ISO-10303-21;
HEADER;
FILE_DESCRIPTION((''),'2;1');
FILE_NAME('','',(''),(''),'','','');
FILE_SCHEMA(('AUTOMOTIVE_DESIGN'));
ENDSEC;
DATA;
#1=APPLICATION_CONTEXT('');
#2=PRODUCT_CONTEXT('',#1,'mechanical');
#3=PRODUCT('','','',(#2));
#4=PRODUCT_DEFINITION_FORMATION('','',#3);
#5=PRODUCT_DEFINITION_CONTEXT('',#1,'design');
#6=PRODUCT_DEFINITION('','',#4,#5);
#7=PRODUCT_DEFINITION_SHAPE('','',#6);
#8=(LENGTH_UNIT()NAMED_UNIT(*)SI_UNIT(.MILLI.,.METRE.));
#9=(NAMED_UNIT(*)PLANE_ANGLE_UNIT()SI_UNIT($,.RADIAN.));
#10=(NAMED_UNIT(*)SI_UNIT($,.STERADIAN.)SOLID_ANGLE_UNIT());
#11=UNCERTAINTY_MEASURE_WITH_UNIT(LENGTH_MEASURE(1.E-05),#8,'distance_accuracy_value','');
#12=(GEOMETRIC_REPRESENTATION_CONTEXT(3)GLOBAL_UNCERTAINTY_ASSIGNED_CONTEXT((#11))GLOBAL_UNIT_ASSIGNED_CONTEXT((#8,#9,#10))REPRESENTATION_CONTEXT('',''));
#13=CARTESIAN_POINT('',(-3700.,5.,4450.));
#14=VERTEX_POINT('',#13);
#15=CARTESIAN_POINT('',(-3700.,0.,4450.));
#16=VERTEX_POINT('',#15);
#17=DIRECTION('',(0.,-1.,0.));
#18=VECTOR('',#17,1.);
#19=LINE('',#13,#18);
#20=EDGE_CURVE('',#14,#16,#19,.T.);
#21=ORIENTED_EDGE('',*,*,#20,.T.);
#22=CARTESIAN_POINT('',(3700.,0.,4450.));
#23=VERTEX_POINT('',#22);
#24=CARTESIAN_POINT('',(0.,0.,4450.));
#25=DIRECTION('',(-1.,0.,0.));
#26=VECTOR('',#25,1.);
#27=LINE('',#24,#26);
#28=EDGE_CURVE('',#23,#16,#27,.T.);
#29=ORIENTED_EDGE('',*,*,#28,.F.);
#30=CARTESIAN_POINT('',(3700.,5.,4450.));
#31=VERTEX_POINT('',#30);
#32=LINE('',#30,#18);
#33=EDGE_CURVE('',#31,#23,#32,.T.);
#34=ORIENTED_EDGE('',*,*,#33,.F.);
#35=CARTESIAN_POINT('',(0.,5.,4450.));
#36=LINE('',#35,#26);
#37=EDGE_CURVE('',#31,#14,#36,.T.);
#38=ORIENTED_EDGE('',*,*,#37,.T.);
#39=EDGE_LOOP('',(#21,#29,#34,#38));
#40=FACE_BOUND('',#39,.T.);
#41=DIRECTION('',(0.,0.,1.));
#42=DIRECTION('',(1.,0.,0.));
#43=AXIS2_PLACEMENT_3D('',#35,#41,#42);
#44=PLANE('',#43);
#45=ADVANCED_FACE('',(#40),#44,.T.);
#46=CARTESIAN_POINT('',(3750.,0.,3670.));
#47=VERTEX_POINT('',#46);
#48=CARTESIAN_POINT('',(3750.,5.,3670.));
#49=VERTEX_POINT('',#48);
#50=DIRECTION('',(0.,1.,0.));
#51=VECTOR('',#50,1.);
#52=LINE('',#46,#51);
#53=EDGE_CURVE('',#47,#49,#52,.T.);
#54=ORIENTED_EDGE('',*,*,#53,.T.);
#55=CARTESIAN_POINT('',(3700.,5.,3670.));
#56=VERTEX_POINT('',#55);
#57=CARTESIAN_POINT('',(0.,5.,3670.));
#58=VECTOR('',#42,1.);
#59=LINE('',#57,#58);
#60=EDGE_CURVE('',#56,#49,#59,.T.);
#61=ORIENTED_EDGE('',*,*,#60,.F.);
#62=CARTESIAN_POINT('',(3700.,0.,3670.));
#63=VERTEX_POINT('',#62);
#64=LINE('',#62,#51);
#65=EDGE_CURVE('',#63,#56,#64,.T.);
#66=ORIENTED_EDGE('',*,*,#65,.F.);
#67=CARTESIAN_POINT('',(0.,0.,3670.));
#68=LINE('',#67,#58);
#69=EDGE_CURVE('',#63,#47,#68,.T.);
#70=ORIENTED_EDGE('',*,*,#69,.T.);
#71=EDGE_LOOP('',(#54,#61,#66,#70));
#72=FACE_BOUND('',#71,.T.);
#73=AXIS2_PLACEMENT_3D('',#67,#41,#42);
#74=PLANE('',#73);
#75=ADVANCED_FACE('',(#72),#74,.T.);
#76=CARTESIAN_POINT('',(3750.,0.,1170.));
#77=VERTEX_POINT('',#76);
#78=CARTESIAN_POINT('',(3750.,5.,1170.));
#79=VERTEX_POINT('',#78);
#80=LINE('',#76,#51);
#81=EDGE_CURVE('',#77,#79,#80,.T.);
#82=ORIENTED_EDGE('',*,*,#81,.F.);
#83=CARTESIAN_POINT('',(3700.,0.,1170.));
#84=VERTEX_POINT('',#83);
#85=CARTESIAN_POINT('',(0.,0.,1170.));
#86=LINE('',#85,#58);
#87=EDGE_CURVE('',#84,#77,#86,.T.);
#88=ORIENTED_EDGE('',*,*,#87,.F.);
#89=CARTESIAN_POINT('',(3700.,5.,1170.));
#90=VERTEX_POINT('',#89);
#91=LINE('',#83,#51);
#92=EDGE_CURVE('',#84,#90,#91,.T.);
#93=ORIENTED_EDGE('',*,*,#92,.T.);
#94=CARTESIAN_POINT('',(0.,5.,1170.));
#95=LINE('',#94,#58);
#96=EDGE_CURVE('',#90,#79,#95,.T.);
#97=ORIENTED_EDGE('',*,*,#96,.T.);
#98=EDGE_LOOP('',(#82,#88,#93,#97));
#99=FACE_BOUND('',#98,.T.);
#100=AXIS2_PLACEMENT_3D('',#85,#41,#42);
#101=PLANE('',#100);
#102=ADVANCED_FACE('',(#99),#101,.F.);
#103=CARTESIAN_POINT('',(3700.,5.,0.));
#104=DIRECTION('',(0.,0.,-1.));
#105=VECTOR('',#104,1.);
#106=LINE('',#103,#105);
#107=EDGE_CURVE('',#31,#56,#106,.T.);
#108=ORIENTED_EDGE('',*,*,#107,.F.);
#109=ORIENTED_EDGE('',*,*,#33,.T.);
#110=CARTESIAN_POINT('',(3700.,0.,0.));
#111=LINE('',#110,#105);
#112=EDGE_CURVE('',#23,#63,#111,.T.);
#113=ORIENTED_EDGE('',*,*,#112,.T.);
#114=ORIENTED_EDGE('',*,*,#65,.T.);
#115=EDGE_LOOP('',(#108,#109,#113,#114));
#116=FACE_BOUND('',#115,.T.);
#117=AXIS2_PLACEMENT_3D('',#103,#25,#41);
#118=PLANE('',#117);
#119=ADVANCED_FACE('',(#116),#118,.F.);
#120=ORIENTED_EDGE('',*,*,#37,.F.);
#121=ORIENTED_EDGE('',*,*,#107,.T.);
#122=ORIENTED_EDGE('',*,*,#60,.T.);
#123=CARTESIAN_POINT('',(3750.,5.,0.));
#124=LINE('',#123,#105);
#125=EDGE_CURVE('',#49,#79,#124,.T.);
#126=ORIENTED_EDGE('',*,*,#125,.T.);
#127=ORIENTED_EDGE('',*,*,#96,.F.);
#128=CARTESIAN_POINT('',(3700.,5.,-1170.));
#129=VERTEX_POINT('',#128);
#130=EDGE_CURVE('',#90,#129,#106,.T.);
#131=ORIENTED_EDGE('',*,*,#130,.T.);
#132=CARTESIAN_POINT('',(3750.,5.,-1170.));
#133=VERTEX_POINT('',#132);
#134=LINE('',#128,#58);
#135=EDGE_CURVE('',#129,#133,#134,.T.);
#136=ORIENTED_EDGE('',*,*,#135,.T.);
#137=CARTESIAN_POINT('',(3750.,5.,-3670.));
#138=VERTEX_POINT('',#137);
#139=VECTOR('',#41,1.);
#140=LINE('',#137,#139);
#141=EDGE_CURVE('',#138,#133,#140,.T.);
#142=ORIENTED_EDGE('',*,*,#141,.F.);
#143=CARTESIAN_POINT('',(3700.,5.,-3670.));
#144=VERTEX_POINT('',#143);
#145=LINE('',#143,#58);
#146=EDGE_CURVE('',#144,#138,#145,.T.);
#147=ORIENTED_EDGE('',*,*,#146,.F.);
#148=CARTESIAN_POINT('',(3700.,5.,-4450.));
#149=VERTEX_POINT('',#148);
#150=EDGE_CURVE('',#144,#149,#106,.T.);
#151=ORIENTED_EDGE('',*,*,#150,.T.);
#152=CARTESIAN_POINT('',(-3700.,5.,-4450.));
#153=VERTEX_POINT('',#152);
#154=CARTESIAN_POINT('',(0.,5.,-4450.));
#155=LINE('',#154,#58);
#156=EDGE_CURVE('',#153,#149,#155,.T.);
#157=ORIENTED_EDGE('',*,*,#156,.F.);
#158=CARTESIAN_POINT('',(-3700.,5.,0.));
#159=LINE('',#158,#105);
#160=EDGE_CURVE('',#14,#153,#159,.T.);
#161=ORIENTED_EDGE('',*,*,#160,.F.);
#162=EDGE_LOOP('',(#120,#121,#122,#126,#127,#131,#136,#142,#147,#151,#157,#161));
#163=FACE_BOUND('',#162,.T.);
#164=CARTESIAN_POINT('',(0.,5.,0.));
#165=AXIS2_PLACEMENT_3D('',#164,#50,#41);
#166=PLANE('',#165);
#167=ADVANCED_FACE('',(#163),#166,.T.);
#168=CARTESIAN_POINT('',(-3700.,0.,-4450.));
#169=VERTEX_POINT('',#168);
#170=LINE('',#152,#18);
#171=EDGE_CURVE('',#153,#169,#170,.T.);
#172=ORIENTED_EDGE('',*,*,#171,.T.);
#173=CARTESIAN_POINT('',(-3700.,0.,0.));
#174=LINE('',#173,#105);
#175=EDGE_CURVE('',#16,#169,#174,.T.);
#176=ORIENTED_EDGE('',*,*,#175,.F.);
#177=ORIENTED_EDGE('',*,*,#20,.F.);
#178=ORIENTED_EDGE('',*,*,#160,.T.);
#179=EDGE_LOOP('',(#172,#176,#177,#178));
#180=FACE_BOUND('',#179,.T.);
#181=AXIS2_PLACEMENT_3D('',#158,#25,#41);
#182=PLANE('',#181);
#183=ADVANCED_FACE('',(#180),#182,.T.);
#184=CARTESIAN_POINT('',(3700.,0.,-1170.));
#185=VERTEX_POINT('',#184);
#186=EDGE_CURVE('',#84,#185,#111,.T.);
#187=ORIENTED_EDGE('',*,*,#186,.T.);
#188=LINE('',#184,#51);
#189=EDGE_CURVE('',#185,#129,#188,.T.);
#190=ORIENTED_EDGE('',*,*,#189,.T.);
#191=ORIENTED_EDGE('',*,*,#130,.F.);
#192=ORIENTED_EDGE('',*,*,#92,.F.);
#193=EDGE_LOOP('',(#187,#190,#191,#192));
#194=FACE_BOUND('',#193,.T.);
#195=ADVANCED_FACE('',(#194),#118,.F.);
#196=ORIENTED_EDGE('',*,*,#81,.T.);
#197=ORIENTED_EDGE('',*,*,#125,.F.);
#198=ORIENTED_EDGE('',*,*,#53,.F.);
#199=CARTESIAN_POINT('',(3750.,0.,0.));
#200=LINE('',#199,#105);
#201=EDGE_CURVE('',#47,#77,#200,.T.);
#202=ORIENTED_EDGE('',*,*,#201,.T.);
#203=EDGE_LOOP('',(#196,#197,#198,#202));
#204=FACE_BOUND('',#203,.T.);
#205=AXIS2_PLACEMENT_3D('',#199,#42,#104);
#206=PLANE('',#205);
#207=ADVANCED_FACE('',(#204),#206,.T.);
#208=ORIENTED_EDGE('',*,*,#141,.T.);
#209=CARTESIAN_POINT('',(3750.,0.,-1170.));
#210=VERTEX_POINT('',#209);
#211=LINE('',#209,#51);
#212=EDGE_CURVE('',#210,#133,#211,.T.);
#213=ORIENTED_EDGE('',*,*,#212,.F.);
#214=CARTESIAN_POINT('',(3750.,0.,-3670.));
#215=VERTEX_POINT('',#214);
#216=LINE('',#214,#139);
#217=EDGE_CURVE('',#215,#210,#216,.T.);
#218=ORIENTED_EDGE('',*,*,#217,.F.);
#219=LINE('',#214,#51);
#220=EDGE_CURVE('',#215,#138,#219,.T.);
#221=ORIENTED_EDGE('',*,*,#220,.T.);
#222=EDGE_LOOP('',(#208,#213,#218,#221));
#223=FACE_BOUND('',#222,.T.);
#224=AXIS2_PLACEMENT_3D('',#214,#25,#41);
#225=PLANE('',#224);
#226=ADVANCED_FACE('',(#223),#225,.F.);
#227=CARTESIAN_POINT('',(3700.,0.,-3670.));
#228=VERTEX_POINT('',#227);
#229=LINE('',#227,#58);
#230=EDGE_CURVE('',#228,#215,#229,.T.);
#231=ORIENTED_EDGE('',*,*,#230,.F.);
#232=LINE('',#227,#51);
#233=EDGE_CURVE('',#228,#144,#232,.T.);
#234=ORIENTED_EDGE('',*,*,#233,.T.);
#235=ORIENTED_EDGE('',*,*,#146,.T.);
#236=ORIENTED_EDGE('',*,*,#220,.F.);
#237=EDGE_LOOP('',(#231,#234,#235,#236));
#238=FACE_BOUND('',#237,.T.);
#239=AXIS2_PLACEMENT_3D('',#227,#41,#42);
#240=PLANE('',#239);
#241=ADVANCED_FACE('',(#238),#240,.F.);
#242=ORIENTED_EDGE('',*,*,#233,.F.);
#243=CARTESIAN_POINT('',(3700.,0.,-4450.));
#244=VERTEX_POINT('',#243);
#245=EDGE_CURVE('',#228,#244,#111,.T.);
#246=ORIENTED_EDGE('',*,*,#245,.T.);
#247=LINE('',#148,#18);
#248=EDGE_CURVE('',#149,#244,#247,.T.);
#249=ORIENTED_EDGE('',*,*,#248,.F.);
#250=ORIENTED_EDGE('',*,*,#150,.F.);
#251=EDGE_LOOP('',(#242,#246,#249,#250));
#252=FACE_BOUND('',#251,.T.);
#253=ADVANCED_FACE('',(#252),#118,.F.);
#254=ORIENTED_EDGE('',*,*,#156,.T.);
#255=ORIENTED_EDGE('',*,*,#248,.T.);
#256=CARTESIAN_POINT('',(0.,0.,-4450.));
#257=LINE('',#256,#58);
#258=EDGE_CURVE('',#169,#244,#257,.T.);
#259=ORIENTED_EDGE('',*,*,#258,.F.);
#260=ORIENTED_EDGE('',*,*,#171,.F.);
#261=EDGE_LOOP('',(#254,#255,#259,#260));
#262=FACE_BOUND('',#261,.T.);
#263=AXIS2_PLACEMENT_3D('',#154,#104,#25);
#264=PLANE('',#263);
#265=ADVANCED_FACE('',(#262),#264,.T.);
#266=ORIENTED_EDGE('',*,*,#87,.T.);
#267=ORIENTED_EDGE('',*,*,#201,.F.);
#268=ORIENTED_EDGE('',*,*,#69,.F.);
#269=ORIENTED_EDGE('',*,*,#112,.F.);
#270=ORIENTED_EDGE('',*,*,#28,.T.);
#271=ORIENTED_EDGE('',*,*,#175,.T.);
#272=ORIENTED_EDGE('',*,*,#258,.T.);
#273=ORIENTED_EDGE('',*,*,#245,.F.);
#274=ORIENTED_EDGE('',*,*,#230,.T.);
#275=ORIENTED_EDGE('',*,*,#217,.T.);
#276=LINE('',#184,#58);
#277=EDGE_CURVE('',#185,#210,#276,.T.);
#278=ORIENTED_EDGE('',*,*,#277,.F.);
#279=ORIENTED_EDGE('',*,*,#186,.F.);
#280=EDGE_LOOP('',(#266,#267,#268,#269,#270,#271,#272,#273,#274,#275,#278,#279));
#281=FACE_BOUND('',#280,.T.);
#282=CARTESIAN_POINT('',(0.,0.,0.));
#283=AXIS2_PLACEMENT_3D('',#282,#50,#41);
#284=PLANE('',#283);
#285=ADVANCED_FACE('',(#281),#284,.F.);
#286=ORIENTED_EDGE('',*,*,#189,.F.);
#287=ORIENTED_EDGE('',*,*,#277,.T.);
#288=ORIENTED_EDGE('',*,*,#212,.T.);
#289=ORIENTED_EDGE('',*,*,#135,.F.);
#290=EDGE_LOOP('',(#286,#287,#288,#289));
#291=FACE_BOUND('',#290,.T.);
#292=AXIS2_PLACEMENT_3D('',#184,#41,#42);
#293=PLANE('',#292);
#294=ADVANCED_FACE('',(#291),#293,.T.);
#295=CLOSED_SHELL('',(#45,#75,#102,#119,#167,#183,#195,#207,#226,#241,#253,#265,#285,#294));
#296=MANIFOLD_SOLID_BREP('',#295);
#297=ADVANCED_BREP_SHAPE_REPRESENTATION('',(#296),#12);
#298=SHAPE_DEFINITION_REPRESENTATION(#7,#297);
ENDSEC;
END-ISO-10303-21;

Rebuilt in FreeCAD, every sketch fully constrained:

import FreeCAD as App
import Part
import Sketcher
from FreeCAD import Vector


def add_polygon(sketch, points):
    """Adds a closed chain of lines whose ends are joined by coincident constraints."""
    first, n = sketch.GeometryCount, len(points)
    for a, b in zip(points, points[1:] + points[:1]):
        sketch.addGeometry(Part.LineSegment(App.Vector(*a, 0), App.Vector(*b, 0)), False)
    for i in range(n):
        sketch.addConstraint(Sketcher.Constraint("Coincident", first + i, 2, first + (i + 1) % n, 1))

doc = App.newDocument("Part")
body = doc.addObject("PartDesign::Body", "Body")

# Sketch on XZ plane
sketch1 = body.newObject("Sketcher::SketchObject", "Sketch")
sketch1.AttachmentSupport = (doc.getObject("XZ_Plane"), [""])
sketch1.MapMode = "FlatFace"
add_polygon(sketch1, [(-3700, 4450), (3700, 4450), (3700, -4450), (-3700, -4450)])  # lines 0-3
sketch1.addConstraint(Sketcher.Constraint("Horizontal", 0))
sketch1.addConstraint(Sketcher.Constraint("Vertical", 1))
sketch1.addConstraint(Sketcher.Constraint("Horizontal", 2))
sketch1.addConstraint(Sketcher.Constraint("Vertical", 3))
sketch1.addConstraint(Sketcher.Constraint("Symmetric", 0, 2, 2, 2, -1, 1))
sketch1.addConstraint(Sketcher.Constraint("DistanceX", 0, 1, 0, 2, 7400.0))
sketch1.addConstraint(Sketcher.Constraint("DistanceY", 1, 2, 1, 1, 8900.0))
pad1 = body.newObject("PartDesign::Pad", "Pad")
pad1.Profile = sketch1
pad1.Length = 5
pad1.Reversed = True

# Sketch on XZ plane
sketch2 = body.newObject("Sketcher::SketchObject", "Sketch001")
sketch2.AttachmentSupport = (doc.getObject("XZ_Plane"), [""])
sketch2.MapMode = "FlatFace"
sketch2.AttachmentOffset = App.Placement(Vector(0, 0, -5), App.Rotation())
add_polygon(sketch2, [(3700, 1170), (3700, 3670), (3750, 3670), (3750, 1170)])  # lines 0-3
add_polygon(sketch2, [(3700, -3670), (3700, -1170), (3750, -1170), (3750, -3670)])  # lines 4-7
sketch2.addConstraint(Sketcher.Constraint("Vertical", 0))
sketch2.addConstraint(Sketcher.Constraint("Horizontal", 1))
sketch2.addConstraint(Sketcher.Constraint("Vertical", 2))
sketch2.addConstraint(Sketcher.Constraint("Horizontal", 3))
sketch2.addConstraint(Sketcher.Constraint("Vertical", 4))
sketch2.addConstraint(Sketcher.Constraint("Horizontal", 5))
sketch2.addConstraint(Sketcher.Constraint("Vertical", 6))
sketch2.addConstraint(Sketcher.Constraint("Horizontal", 7))
sketch2.addConstraint(Sketcher.Constraint("Symmetric", 3, 2, 4, 2, -1))
sketch2.addConstraint(Sketcher.Constraint("Symmetric", 1, 2, 6, 2, -1))
sketch2.addConstraint(Sketcher.Constraint("DistanceX", 1, 1, 1, 2, 50.0))
sketch2.addConstraint(Sketcher.Constraint("DistanceY", 0, 1, 0, 2, 2500.0))
sketch2.addConstraint(Sketcher.Constraint("DistanceX", -1, 1, 0, 2, 3700.0))
sketch2.addConstraint(Sketcher.Constraint("DistanceY", -1, 1, 0, 2, 3670.0))
pad2 = body.newObject("PartDesign::Pad", "Pad001")
pad2.Profile = sketch2
pad2.Length = 5

doc.recompute()
